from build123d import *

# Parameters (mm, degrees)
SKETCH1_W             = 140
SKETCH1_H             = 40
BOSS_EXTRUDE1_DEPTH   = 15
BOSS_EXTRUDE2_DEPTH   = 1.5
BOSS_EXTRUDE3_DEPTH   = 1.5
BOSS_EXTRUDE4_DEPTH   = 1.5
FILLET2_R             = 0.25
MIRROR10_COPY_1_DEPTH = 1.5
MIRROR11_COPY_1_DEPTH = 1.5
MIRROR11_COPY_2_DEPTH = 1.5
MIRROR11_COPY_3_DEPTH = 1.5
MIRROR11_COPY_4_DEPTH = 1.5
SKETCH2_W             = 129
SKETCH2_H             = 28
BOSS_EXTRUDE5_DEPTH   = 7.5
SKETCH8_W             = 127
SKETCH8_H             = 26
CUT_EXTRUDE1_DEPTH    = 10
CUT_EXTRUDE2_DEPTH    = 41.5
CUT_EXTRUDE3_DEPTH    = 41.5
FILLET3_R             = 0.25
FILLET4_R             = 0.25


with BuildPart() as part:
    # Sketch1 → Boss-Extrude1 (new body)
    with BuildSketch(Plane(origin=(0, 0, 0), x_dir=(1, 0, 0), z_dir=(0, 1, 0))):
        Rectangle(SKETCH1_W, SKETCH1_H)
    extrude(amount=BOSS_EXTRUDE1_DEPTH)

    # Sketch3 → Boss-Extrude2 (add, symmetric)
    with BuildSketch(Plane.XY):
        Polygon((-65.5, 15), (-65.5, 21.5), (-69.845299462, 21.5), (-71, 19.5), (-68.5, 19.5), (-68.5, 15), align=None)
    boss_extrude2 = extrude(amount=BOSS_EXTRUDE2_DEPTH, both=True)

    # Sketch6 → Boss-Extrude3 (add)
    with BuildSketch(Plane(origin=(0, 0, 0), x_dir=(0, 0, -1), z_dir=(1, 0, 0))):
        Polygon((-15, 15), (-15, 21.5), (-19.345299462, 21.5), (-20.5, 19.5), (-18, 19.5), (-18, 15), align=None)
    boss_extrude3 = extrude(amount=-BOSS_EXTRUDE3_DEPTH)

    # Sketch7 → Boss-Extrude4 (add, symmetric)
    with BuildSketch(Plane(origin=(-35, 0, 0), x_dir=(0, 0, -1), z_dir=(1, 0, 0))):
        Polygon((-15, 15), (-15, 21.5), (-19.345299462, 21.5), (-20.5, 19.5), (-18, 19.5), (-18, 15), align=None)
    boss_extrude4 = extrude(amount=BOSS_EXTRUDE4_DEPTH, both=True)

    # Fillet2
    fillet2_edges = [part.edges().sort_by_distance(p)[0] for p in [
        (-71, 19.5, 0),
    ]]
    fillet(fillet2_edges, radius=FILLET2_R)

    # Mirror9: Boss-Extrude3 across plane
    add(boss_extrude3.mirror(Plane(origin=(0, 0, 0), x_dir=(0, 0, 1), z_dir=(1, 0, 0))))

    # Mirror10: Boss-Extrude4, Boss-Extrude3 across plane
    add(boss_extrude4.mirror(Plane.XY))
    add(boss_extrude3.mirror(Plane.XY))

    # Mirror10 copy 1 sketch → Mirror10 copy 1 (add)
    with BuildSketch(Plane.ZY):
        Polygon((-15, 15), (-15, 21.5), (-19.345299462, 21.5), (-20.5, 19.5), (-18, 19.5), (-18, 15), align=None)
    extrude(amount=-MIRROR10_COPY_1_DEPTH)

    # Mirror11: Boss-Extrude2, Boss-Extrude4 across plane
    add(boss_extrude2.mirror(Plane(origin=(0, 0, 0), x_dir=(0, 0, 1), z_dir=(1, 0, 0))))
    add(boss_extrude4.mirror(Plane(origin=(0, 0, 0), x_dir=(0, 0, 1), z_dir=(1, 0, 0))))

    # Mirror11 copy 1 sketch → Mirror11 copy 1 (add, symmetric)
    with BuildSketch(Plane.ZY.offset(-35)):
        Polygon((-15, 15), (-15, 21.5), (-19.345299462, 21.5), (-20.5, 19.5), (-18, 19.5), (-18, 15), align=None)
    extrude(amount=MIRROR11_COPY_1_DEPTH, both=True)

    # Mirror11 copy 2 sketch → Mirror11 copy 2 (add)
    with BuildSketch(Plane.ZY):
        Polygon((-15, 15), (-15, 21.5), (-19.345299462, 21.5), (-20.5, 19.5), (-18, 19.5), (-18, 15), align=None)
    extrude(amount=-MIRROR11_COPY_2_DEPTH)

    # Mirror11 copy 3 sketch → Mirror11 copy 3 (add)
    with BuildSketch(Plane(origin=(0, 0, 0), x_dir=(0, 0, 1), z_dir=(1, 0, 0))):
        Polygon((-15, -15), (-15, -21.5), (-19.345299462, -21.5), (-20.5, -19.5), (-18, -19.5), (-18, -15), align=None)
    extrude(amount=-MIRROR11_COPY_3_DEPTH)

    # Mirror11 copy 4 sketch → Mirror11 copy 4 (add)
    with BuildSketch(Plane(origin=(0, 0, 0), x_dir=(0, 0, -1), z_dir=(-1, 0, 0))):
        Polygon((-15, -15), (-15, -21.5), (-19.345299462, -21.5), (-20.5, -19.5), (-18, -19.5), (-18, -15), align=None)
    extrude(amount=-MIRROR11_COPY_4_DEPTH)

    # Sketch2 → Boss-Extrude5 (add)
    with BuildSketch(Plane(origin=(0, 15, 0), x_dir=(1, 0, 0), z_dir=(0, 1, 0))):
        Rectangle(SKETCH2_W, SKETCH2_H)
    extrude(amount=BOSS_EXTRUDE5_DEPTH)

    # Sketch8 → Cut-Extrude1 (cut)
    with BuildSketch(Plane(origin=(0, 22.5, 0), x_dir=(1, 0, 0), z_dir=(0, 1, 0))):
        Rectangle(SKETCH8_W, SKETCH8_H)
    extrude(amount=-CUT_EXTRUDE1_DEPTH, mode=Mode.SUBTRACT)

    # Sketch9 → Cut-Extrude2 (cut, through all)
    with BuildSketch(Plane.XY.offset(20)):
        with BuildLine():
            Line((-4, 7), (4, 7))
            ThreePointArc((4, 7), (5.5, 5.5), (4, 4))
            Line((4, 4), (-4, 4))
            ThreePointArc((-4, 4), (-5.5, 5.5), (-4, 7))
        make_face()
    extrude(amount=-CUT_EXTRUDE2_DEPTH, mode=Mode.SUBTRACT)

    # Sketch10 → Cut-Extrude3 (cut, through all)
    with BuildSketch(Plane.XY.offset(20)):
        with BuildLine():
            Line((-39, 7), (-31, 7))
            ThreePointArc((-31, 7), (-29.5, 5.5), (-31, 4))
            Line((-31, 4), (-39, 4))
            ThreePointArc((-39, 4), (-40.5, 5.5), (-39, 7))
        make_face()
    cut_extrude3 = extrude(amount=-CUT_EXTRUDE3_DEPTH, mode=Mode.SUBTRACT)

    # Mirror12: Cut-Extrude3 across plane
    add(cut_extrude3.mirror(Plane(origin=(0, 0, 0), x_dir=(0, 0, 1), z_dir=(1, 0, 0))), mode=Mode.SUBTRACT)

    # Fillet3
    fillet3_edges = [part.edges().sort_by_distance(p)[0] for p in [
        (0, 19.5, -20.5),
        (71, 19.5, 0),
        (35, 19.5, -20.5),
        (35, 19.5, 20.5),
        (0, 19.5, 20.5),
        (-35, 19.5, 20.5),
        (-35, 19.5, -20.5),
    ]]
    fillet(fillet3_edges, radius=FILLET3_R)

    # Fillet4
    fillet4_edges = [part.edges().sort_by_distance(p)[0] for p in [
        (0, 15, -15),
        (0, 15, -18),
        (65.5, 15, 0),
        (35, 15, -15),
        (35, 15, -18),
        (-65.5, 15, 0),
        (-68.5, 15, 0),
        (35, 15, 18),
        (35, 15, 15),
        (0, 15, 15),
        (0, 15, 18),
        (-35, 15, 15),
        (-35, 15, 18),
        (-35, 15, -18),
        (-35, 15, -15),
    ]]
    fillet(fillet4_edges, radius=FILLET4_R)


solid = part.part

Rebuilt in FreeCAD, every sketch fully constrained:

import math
import FreeCAD as App
import Part
import Sketcher

V = App.Vector
Q = App.Units.Quantity


def edges_at(feature, points):
    """Names of the edges that pass closest to the given points."""
    edges = feature.Shape.Edges
    near = lambda p: min(range(len(edges)), key=lambda i: edges[i].distToShape(Part.Vertex(*p))[0])
    return sorted({f"Edge{near(p) + 1}" for p in points})


def add_polygon(sketch, points):
    """Adds a closed chain of lines whose ends are joined by coincident constraints."""
    first, n = sketch.GeometryCount, len(points)
    for a, b in zip(points, points[1:] + points[:1]):
        sketch.addGeometry(Part.LineSegment(App.Vector(*a, 0), App.Vector(*b, 0)), False)
    for i in range(n):
        sketch.addConstraint(Sketcher.Constraint("Coincident", first + i, 2, first + (i + 1) % n, 1))

doc = App.newDocument("Part")
body = doc.addObject("PartDesign::Body", "Body")

# Sketch on XZ plane
sketch1 = body.newObject("Sketcher::SketchObject", "Sketch")
sketch1.AttachmentSupport = (doc.getObject("XZ_Plane"), [""])
sketch1.MapMode = "FlatFace"
add_polygon(sketch1, [(-70, -20), (-70, 20), (70, 20), (70, -20)])  # lines 0-3
sketch1.addConstraint(Sketcher.Constraint("Vertical", 0))
sketch1.addConstraint(Sketcher.Constraint("Horizontal", 1))
sketch1.addConstraint(Sketcher.Constraint("Vertical", 2))
sketch1.addConstraint(Sketcher.Constraint("Horizontal", 3))
sketch1.addConstraint(Sketcher.Constraint("Symmetric", 0, 2, 2, 2, -1, 1))
sketch1.addConstraint(Sketcher.Constraint("DistanceX", 1, 1, 1, 2, Q("140 mm")))
sketch1.addConstraint(Sketcher.Constraint("DistanceY", 0, 1, 0, 2, Q("40 mm")))
pad1 = body.newObject("PartDesign::Pad", "Pad")
pad1.Profile = sketch1
pad1.Length = 15
pad1.Reversed = True

# Sketch on XY plane
sketch2 = body.newObject("Sketcher::SketchObject", "Sketch001")
sketch2.AttachmentSupport = (doc.getObject("XY_Plane"), [""])
sketch2.MapMode = "FlatFace"
add_polygon(sketch2, [(-65.5, 15), (-65.5, 21.5), (-69.845299, 21.5), (-71, 19.5), (-68.5, 19.5), (-68.5, 15)])  # lines 0-5
sketch2.addConstraint(Sketcher.Constraint("Vertical", 0))
sketch2.addConstraint(Sketcher.Constraint("Horizontal", 1))
sketch2.addConstraint(Sketcher.Constraint("Horizontal", 3))
sketch2.addConstraint(Sketcher.Constraint("Vertical", 4))
sketch2.addConstraint(Sketcher.Constraint("Horizontal", 5))
sketch2.addConstraint(Sketcher.Constraint("DistanceX", 5, 1, 5, 2, Q("3 mm")))
sketch2.addConstraint(Sketcher.Constraint("Angle", 2, Q("-120 deg")))
sketch2.addConstraint(Sketcher.Constraint("DistanceX", 3, 1, 3, 2, Q("2.5 mm")))
sketch2.addConstraint(Sketcher.Constraint("DistanceY", 0, 1, 0, 2, Q("6.5 mm")))
sketch2.addConstraint(Sketcher.Constraint("DistanceY", 4, 2, 4, 1, Q("4.5 mm")))
sketch2.addConstraint(Sketcher.Constraint("DistanceX", 2, 2, -1, 1, Q("71 mm")))
sketch2.addConstraint(Sketcher.Constraint("DistanceY", -1, 1, 4, 2, Q("15 mm")))
pad2 = body.newObject("PartDesign::Pad", "Pad001")
pad2.Profile = sketch2
pad2.Length = 3
pad2.Midplane = True

# Sketch on YZ plane
sketch3 = body.newObject("Sketcher::SketchObject", "Sketch002")
sketch3.AttachmentSupport = (doc.getObject("YZ_Plane"), [""])
sketch3.MapMode = "FlatFace"
add_polygon(sketch3, [(15, 15), (21.5, 15), (21.5, 19.345299), (19.5, 20.5), (19.5, 18), (15, 18)])  # lines 0-5
sketch3.addConstraint(Sketcher.Constraint("Horizontal", 0))
sketch3.addConstraint(Sketcher.Constraint("Vertical", 1))
sketch3.addConstraint(Sketcher.Constraint("Vertical", 3))
sketch3.addConstraint(Sketcher.Constraint("Horizontal", 4))
sketch3.addConstraint(Sketcher.Constraint("Vertical", 5))
sketch3.addConstraint(Sketcher.Constraint("DistanceY", 5, 2, 5, 1, Q("3 mm")))
sketch3.addConstraint(Sketcher.Constraint("Angle", 2, Q("150 deg")))
sketch3.addConstraint(Sketcher.Constraint("DistanceX", 0, 1, 0, 2, Q("6.5 mm")))
sketch3.addConstraint(Sketcher.Constraint("DistanceX", 4, 2, 4, 1, Q("4.5 mm")))
sketch3.addConstraint(Sketcher.Constraint("DistanceY", 3, 2, 3, 1, Q("2.5 mm")))
sketch3.addConstraint(Sketcher.Constraint("DistanceY", -1, 1, 0, 2, Q("15 mm")))
sketch3.addConstraint(Sketcher.Constraint("DistanceX", -1, 1, 4, 2, Q("15 mm")))
pad3 = body.newObject("PartDesign::Pad", "Pad002")
pad3.Profile = sketch3
pad3.Length = 1.5
pad3.Reversed = True

# Sketch on YZ plane
sketch4 = body.newObject("Sketcher::SketchObject", "Sketch003")
sketch4.AttachmentSupport = (doc.getObject("YZ_Plane"), [""])
sketch4.MapMode = "FlatFace"
sketch4.AttachmentOffset = App.Placement(V(0, 0, -35), App.Rotation())
add_polygon(sketch4, [(15, 15), (21.5, 15), (21.5, 19.345299), (19.5, 20.5), (19.5, 18), (15, 18)])  # lines 0-5
sketch4.addConstraint(Sketcher.Constraint("Horizontal", 0))
sketch4.addConstraint(Sketcher.Constraint("Vertical", 1))
sketch4.addConstraint(Sketcher.Constraint("Vertical", 3))
sketch4.addConstraint(Sketcher.Constraint("Horizontal", 4))
sketch4.addConstraint(Sketcher.Constraint("Vertical", 5))
sketch4.addConstraint(Sketcher.Constraint("DistanceY", 5, 2, 5, 1, Q("3 mm")))
sketch4.addConstraint(Sketcher.Constraint("Angle", 2, Q("150 deg")))
sketch4.addConstraint(Sketcher.Constraint("DistanceX", 0, 1, 0, 2, Q("6.5 mm")))
sketch4.addConstraint(Sketcher.Constraint("DistanceX", 4, 2, 4, 1, Q("4.5 mm")))
sketch4.addConstraint(Sketcher.Constraint("DistanceY", 3, 2, 3, 1, Q("2.5 mm")))
sketch4.addConstraint(Sketcher.Constraint("DistanceY", -1, 1, 0, 2, Q("15 mm")))
sketch4.addConstraint(Sketcher.Constraint("DistanceX", -1, 1, 4, 2, Q("15 mm")))
pad4 = body.newObject("PartDesign::Pad", "Pad003")
pad4.Profile = sketch4
pad4.Length = 3
pad4.Midplane = True
doc.recompute()

fillet = body.newObject("PartDesign::Fillet", "Fillet")
fillet.Base = (pad4, edges_at(pad4, [(-71, 19.5, 0)]))
fillet.Radius = 0.25
doc.recompute()

mirrored = body.newObject("PartDesign::Mirrored", "Mirrored")
mirrored.Originals = [pad3]
mirrored.MirrorPlane = (doc.getObject("YZ_Plane"), [""])
body.Tip = mirrored
doc.recompute()

mirrored2 = body.newObject("PartDesign::Mirrored", "Mirrored001")
mirrored2.Originals = [pad4, pad3]
mirrored2.MirrorPlane = (doc.getObject("XY_Plane"), [""])
body.Tip = mirrored2

# Sketch on YZ plane
sketch5 = body.newObject("Sketcher::SketchObject", "Sketch004")
sketch5.AttachmentSupport = (doc.getObject("YZ_Plane"), [""])
sketch5.MapMode = "FlatFace"
add_polygon(sketch5, [(15, -15), (21.5, -15), (21.5, -19.345299), (19.5, -20.5), (19.5, -18), (15, -18)])  # lines 0-5
sketch5.addConstraint(Sketcher.Constraint("Horizontal", 0))
sketch5.addConstraint(Sketcher.Constraint("Vertical", 1))
sketch5.addConstraint(Sketcher.Constraint("Vertical", 3))
sketch5.addConstraint(Sketcher.Constraint("Horizontal", 4))
sketch5.addConstraint(Sketcher.Constraint("Vertical", 5))
sketch5.addConstraint(Sketcher.Constraint("DistanceY", 5, 1, 5, 2, Q("3 mm")))
sketch5.addConstraint(Sketcher.Constraint("Angle", 2, Q("-150 deg")))
sketch5.addConstraint(Sketcher.Constraint("DistanceX", 0, 1, 0, 2, Q("6.5 mm")))
sketch5.addConstraint(Sketcher.Constraint("DistanceX", 4, 2, 4, 1, Q("4.5 mm")))
sketch5.addConstraint(Sketcher.Constraint("DistanceY", 3, 1, 3, 2, Q("2.5 mm")))
sketch5.addConstraint(Sketcher.Constraint("DistanceY", 0, 2, -1, 1, Q("15 mm")))
sketch5.addConstraint(Sketcher.Constraint("DistanceX", -1, 1, 4, 2, Q("15 mm")))
pad5 = body.newObject("PartDesign::Pad", "Pad004")
pad5.Profile = sketch5
pad5.Length = 1.5
doc.recompute()

mirrored3 = body.newObject("PartDesign::Mirrored", "Mirrored002")
mirrored3.Originals = [pad2, pad4]
mirrored3.MirrorPlane = (doc.getObject("YZ_Plane"), [""])
body.Tip = mirrored3

# Sketch on YZ plane
sketch6 = body.newObject("Sketcher::SketchObject", "Sketch005")
sketch6.AttachmentSupport = (doc.getObject("YZ_Plane"), [""])
sketch6.MapMode = "FlatFace"
sketch6.AttachmentOffset = App.Placement(V(0, 0, 35), App.Rotation())
add_polygon(sketch6, [(15, -15), (21.5, -15), (21.5, -19.345299), (19.5, -20.5), (19.5, -18), (15, -18)])  # lines 0-5
sketch6.addConstraint(Sketcher.Constraint("Horizontal", 0))
sketch6.addConstraint(Sketcher.Constraint("Vertical", 1))
sketch6.addConstraint(Sketcher.Constraint("Vertical", 3))
sketch6.addConstraint(Sketcher.Constraint("Horizontal", 4))
sketch6.addConstraint(Sketcher.Constraint("Vertical", 5))
sketch6.addConstraint(Sketcher.Constraint("DistanceY", 5, 1, 5, 2, Q("3 mm")))
sketch6.addConstraint(Sketcher.Constraint("Angle", 2, Q("-150 deg")))
sketch6.addConstraint(Sketcher.Constraint("DistanceX", 0, 1, 0, 2, Q("6.5 mm")))
sketch6.addConstraint(Sketcher.Constraint("DistanceX", 4, 2, 4, 1, Q("4.5 mm")))
sketch6.addConstraint(Sketcher.Constraint("DistanceY", 3, 1, 3, 2, Q("2.5 mm")))
sketch6.addConstraint(Sketcher.Constraint("DistanceY", 0, 2, -1, 1, Q("15 mm")))
sketch6.addConstraint(Sketcher.Constraint("DistanceX", -1, 1, 4, 2, Q("15 mm")))
pad6 = body.newObject("PartDesign::Pad", "Pad005")
pad6.Profile = sketch6
pad6.Length = 3
pad6.Midplane = True

# Sketch on YZ plane
sketch7 = body.newObject("Sketcher::SketchObject", "Sketch006")
sketch7.AttachmentSupport = (doc.getObject("YZ_Plane"), [""])
sketch7.MapMode = "FlatFace"
add_polygon(sketch7, [(15, -15), (21.5, -15), (21.5, -19.345299), (19.5, -20.5), (19.5, -18), (15, -18)])  # lines 0-5
sketch7.addConstraint(Sketcher.Constraint("Horizontal", 0))
sketch7.addConstraint(Sketcher.Constraint("Vertical", 1))
sketch7.addConstraint(Sketcher.Constraint("Vertical", 3))
sketch7.addConstraint(Sketcher.Constraint("Horizontal", 4))
sketch7.addConstraint(Sketcher.Constraint("Vertical", 5))
sketch7.addConstraint(Sketcher.Constraint("DistanceY", 5, 1, 5, 2, Q("3 mm")))
sketch7.addConstraint(Sketcher.Constraint("Angle", 2, Q("-150 deg")))
sketch7.addConstraint(Sketcher.Constraint("DistanceX", 0, 1, 0, 2, Q("6.5 mm")))
sketch7.addConstraint(Sketcher.Constraint("DistanceX", 4, 2, 4, 1, Q("4.5 mm")))
sketch7.addConstraint(Sketcher.Constraint("DistanceY", 3, 1, 3, 2, Q("2.5 mm")))
sketch7.addConstraint(Sketcher.Constraint("DistanceY", 0, 2, -1, 1, Q("15 mm")))
sketch7.addConstraint(Sketcher.Constraint("DistanceX", -1, 1, 4, 2, Q("15 mm")))
pad7 = body.newObject("PartDesign::Pad", "Pad006")
pad7.Profile = sketch7
pad7.Length = 1.5

# Sketch on YZ plane
sketch8 = body.newObject("Sketcher::SketchObject", "Sketch007")
sketch8.AttachmentSupport = (doc.getObject("YZ_Plane"), [""])
sketch8.MapMode = "FlatFace"
add_polygon(sketch8, [(21.5, -15), (15, -15), (15, -18), (19.5, -18), (19.5, -20.5), (21.5, -19.345299)])  # lines 0-5
sketch8.addConstraint(Sketcher.Constraint("Horizontal", 0))
sketch8.addConstraint(Sketcher.Constraint("Vertical", 1))
sketch8.addConstraint(Sketcher.Constraint("Horizontal", 2))
sketch8.addConstraint(Sketcher.Constraint("Vertical", 3))
sketch8.addConstraint(Sketcher.Constraint("Vertical", 5))
sketch8.addConstraint(Sketcher.Constraint("DistanceY", 1, 2, 1, 1, Q("3 mm")))
sketch8.addConstraint(Sketcher.Constraint("Angle", 4, Q("30 deg")))
sketch8.addConstraint(Sketcher.Constraint("DistanceX", 0, 2, 0, 1, Q("6.5 mm")))
sketch8.addConstraint(Sketcher.Constraint("DistanceX", 2, 1, 2, 2, Q("4.5 mm")))
sketch8.addConstraint(Sketcher.Constraint("DistanceY", 3, 2, 3, 1, Q("2.5 mm")))
sketch8.addConstraint(Sketcher.Constraint("DistanceX", -1, 1, 0, 2, Q("15 mm")))
sketch8.addConstraint(Sketcher.Constraint("DistanceY", 0, 2, -1, 1, Q("15 mm")))
pad8 = body.newObject("PartDesign::Pad", "Pad007")
pad8.Profile = sketch8
pad8.Length = 1.5
pad8.Reversed = True

# Sketch on YZ plane
sketch9 = body.newObject("Sketcher::SketchObject", "Sketch008")
sketch9.AttachmentSupport = (doc.getObject("YZ_Plane"), [""])
sketch9.MapMode = "FlatFace"
add_polygon(sketch9, [(21.5, 15), (15, 15), (15, 18), (19.5, 18), (19.5, 20.5), (21.5, 19.345299)])  # lines 0-5
sketch9.addConstraint(Sketcher.Constraint("Horizontal", 0))
sketch9.addConstraint(Sketcher.Constraint("Vertical", 1))
sketch9.addConstraint(Sketcher.Constraint("Horizontal", 2))
sketch9.addConstraint(Sketcher.Constraint("Vertical", 3))
sketch9.addConstraint(Sketcher.Constraint("Vertical", 5))
sketch9.addConstraint(Sketcher.Constraint("DistanceY", 1, 1, 1, 2, Q("3 mm")))
sketch9.addConstraint(Sketcher.Constraint("Angle", 4, Q("-30 deg")))
sketch9.addConstraint(Sketcher.Constraint("DistanceX", 0, 2, 0, 1, Q("6.5 mm")))
sketch9.addConstraint(Sketcher.Constraint("DistanceX", 2, 1, 2, 2, Q("4.5 mm")))
sketch9.addConstraint(Sketcher.Constraint("DistanceY", 3, 1, 3, 2, Q("2.5 mm")))
sketch9.addConstraint(Sketcher.Constraint("DistanceX", -1, 1, 0, 2, Q("15 mm")))
sketch9.addConstraint(Sketcher.Constraint("DistanceY", -1, 1, 0, 2, Q("15 mm")))
pad9 = body.newObject("PartDesign::Pad", "Pad008")
pad9.Profile = sketch9
pad9.Length = 1.5

# Sketch on XZ plane
sketch10 = body.newObject("Sketcher::SketchObject", "Sketch009")
sketch10.AttachmentSupport = (doc.getObject("XZ_Plane"), [""])
sketch10.MapMode = "FlatFace"
sketch10.AttachmentOffset = App.Placement(V(0, 0, -15), App.Rotation())
add_polygon(sketch10, [(-64.5, -14), (-64.5, 14), (64.5, 14), (64.5, -14)])  # lines 0-3
sketch10.addConstraint(Sketcher.Constraint("Vertical", 0))
sketch10.addConstraint(Sketcher.Constraint("Horizontal", 1))
sketch10.addConstraint(Sketcher.Constraint("Vertical", 2))
sketch10.addConstraint(Sketcher.Constraint("Horizontal", 3))
sketch10.addConstraint(Sketcher.Constraint("Symmetric", 0, 2, 2, 2, -1, 1))
sketch10.addConstraint(Sketcher.Constraint("DistanceX", 1, 1, 1, 2, Q("129 mm")))
sketch10.addConstraint(Sketcher.Constraint("DistanceY", 0, 1, 0, 2, Q("28 mm")))
pad10 = body.newObject("PartDesign::Pad", "Pad009")
pad10.Profile = sketch10
pad10.Length = 7.5
pad10.Reversed = True

# Sketch on XZ plane
sketch11 = body.newObject("Sketcher::SketchObject", "Sketch010")
sketch11.AttachmentSupport = (doc.getObject("XZ_Plane"), [""])
sketch11.MapMode = "FlatFace"
sketch11.AttachmentOffset = App.Placement(V(0, 0, -22.5), App.Rotation())
add_polygon(sketch11, [(-63.5, -13), (-63.5, 13), (63.5, 13), (63.5, -13)])  # lines 0-3
sketch11.addConstraint(Sketcher.Constraint("Vertical", 0))
sketch11.addConstraint(Sketcher.Constraint("Horizontal", 1))
sketch11.addConstraint(Sketcher.Constraint("Vertical", 2))
sketch11.addConstraint(Sketcher.Constraint("Horizontal", 3))
sketch11.addConstraint(Sketcher.Constraint("Symmetric", 0, 2, 2, 2, -1, 1))
sketch11.addConstraint(Sketcher.Constraint("DistanceX", 1, 1, 1, 2, Q("127 mm")))
sketch11.addConstraint(Sketcher.Constraint("DistanceY", 0, 1, 0, 2, Q("26 mm")))
pocket1 = body.newObject("PartDesign::Pocket", "Pocket")
pocket1.Profile = sketch11
pocket1.Length = 10
pocket1.Reversed = True

# Sketch on XY plane
sketch12 = body.newObject("Sketcher::SketchObject", "Sketch011")
sketch12.AttachmentSupport = (doc.getObject("XY_Plane"), [""])
sketch12.MapMode = "FlatFace"
sketch12.AttachmentOffset = App.Placement(V(0, 0, 20), App.Rotation())
sketch12.addGeometry(Part.LineSegment(V(4, 7, 0), V(-4, 7, 0)), False)
sketch12.addGeometry(Part.ArcOfCircle(Part.Circle(V(-4, 5.5, 0), V(0, 0, 1), 1.5), math.radians(90), math.radians(270)), False)
sketch12.addGeometry(Part.LineSegment(V(-4, 4, 0), V(4, 4, 0)), False)
sketch12.addGeometry(Part.ArcOfCircle(Part.Circle(V(4, 5.5, 0), V(0, 0, 1), 1.5), math.radians(-90), math.radians(90)), False)
sketch12.addConstraint(Sketcher.Constraint("Tangent", 0, 2, 1, 1))
sketch12.addConstraint(Sketcher.Constraint("Tangent", 1, 2, 2, 1))
sketch12.addConstraint(Sketcher.Constraint("Tangent", 2, 2, 3, 1))
sketch12.addConstraint(Sketcher.Constraint("Tangent", 3, 2, 0, 1))
sketch12.addConstraint(Sketcher.Constraint("Horizontal", 0))
sketch12.addConstraint(Sketcher.Constraint("Horizontal", 2))
sketch12.addConstraint(Sketcher.Constraint("Radius", 1, Q("1.5 mm")))
sketch12.addConstraint(Sketcher.Constraint("DistanceX", 0, 2, 0, 1, Q("8 mm")))
sketch12.addConstraint(Sketcher.Constraint("DistanceX", 1, 3, -1, 1, Q("4 mm")))
sketch12.addConstraint(Sketcher.Constraint("DistanceY", -1, 1, 0, 2, Q("7 mm")))
pocket2 = body.newObject("PartDesign::Pocket", "Pocket001")
pocket2.Profile = sketch12
pocket2.Type = "ThroughAll"

# Sketch on XY plane
sketch13 = body.newObject("Sketcher::SketchObject", "Sketch012")
sketch13.AttachmentSupport = (doc.getObject("XY_Plane"), [""])
sketch13.MapMode = "FlatFace"
sketch13.AttachmentOffset = App.Placement(V(0, 0, 20), App.Rotation())
sketch13.addGeometry(Part.LineSegment(V(-31, 7, 0), V(-39, 7, 0)), False)
sketch13.addGeometry(Part.ArcOfCircle(Part.Circle(V(-39, 5.5, 0), V(0, 0, 1), 1.5), math.radians(90), math.radians(270)), False)
sketch13.addGeometry(Part.LineSegment(V(-39, 4, 0), V(-31, 4, 0)), False)
sketch13.addGeometry(Part.ArcOfCircle(Part.Circle(V(-31, 5.5, 0), V(0, 0, 1), 1.5), math.radians(-90), math.radians(90)), False)
sketch13.addConstraint(Sketcher.Constraint("Tangent", 0, 2, 1, 1))
sketch13.addConstraint(Sketcher.Constraint("Tangent", 1, 2, 2, 1))
sketch13.addConstraint(Sketcher.Constraint("Tangent", 2, 2, 3, 1))
sketch13.addConstraint(Sketcher.Constraint("Tangent", 3, 2, 0, 1))
sketch13.addConstraint(Sketcher.Constraint("Horizontal", 0))
sketch13.addConstraint(Sketcher.Constraint("Horizontal", 2))
sketch13.addConstraint(Sketcher.Constraint("Radius", 1, Q("1.5 mm")))
sketch13.addConstraint(Sketcher.Constraint("DistanceX", 0, 2, 0, 1, Q("8 mm")))
sketch13.addConstraint(Sketcher.Constraint("DistanceX", 1, 3, -1, 1, Q("39 mm")))
sketch13.addConstraint(Sketcher.Constraint("DistanceY", -1, 1, 0, 2, Q("7 mm")))
pocket3 = body.newObject("PartDesign::Pocket", "Pocket002")
pocket3.Profile = sketch13
pocket3.Type = "ThroughAll"
doc.recompute()

mirrored4 = body.newObject("PartDesign::Mirrored", "Mirrored003")
mirrored4.Originals = [pocket3]
mirrored4.MirrorPlane = (doc.getObject("YZ_Plane"), [""])
body.Tip = mirrored4
doc.recompute()

fillet2 = body.newObject("PartDesign::Fillet", "Fillet001")
fillet2.Base = (mirrored4, edges_at(mirrored4, [
    (0, 19.5, -20.5),
    (71, 19.5, 0),
    (35, 19.5, -20.5),
    (35, 19.5, 20.5),
    (0, 19.5, 20.5),
    (-35, 19.5, 20.5),
    (-35, 19.5, -20.5),
]))
fillet2.Radius = 0.25
doc.recompute()

fillet3 = body.newObject("PartDesign::Fillet", "Fillet002")
fillet3.Base = (fillet2, edges_at(fillet2, [
    (0, 15, -15),
    (0, 15, -18),
    (65.5, 15, 0),
    (35, 15, -15),
    (35, 15, -18),
    (-65.5, 15, 0),
    (-68.5, 15, 0),
    (35, 15, 18),
    (35, 15, 15),
    (0, 15, 15),
    (0, 15, 18),
    (-35, 15, 15),
    (-35, 15, 18),
    (-35, 15, -18),
    (-35, 15, -15),
]))
fillet3.Radius = 0.25

doc.recompute()
